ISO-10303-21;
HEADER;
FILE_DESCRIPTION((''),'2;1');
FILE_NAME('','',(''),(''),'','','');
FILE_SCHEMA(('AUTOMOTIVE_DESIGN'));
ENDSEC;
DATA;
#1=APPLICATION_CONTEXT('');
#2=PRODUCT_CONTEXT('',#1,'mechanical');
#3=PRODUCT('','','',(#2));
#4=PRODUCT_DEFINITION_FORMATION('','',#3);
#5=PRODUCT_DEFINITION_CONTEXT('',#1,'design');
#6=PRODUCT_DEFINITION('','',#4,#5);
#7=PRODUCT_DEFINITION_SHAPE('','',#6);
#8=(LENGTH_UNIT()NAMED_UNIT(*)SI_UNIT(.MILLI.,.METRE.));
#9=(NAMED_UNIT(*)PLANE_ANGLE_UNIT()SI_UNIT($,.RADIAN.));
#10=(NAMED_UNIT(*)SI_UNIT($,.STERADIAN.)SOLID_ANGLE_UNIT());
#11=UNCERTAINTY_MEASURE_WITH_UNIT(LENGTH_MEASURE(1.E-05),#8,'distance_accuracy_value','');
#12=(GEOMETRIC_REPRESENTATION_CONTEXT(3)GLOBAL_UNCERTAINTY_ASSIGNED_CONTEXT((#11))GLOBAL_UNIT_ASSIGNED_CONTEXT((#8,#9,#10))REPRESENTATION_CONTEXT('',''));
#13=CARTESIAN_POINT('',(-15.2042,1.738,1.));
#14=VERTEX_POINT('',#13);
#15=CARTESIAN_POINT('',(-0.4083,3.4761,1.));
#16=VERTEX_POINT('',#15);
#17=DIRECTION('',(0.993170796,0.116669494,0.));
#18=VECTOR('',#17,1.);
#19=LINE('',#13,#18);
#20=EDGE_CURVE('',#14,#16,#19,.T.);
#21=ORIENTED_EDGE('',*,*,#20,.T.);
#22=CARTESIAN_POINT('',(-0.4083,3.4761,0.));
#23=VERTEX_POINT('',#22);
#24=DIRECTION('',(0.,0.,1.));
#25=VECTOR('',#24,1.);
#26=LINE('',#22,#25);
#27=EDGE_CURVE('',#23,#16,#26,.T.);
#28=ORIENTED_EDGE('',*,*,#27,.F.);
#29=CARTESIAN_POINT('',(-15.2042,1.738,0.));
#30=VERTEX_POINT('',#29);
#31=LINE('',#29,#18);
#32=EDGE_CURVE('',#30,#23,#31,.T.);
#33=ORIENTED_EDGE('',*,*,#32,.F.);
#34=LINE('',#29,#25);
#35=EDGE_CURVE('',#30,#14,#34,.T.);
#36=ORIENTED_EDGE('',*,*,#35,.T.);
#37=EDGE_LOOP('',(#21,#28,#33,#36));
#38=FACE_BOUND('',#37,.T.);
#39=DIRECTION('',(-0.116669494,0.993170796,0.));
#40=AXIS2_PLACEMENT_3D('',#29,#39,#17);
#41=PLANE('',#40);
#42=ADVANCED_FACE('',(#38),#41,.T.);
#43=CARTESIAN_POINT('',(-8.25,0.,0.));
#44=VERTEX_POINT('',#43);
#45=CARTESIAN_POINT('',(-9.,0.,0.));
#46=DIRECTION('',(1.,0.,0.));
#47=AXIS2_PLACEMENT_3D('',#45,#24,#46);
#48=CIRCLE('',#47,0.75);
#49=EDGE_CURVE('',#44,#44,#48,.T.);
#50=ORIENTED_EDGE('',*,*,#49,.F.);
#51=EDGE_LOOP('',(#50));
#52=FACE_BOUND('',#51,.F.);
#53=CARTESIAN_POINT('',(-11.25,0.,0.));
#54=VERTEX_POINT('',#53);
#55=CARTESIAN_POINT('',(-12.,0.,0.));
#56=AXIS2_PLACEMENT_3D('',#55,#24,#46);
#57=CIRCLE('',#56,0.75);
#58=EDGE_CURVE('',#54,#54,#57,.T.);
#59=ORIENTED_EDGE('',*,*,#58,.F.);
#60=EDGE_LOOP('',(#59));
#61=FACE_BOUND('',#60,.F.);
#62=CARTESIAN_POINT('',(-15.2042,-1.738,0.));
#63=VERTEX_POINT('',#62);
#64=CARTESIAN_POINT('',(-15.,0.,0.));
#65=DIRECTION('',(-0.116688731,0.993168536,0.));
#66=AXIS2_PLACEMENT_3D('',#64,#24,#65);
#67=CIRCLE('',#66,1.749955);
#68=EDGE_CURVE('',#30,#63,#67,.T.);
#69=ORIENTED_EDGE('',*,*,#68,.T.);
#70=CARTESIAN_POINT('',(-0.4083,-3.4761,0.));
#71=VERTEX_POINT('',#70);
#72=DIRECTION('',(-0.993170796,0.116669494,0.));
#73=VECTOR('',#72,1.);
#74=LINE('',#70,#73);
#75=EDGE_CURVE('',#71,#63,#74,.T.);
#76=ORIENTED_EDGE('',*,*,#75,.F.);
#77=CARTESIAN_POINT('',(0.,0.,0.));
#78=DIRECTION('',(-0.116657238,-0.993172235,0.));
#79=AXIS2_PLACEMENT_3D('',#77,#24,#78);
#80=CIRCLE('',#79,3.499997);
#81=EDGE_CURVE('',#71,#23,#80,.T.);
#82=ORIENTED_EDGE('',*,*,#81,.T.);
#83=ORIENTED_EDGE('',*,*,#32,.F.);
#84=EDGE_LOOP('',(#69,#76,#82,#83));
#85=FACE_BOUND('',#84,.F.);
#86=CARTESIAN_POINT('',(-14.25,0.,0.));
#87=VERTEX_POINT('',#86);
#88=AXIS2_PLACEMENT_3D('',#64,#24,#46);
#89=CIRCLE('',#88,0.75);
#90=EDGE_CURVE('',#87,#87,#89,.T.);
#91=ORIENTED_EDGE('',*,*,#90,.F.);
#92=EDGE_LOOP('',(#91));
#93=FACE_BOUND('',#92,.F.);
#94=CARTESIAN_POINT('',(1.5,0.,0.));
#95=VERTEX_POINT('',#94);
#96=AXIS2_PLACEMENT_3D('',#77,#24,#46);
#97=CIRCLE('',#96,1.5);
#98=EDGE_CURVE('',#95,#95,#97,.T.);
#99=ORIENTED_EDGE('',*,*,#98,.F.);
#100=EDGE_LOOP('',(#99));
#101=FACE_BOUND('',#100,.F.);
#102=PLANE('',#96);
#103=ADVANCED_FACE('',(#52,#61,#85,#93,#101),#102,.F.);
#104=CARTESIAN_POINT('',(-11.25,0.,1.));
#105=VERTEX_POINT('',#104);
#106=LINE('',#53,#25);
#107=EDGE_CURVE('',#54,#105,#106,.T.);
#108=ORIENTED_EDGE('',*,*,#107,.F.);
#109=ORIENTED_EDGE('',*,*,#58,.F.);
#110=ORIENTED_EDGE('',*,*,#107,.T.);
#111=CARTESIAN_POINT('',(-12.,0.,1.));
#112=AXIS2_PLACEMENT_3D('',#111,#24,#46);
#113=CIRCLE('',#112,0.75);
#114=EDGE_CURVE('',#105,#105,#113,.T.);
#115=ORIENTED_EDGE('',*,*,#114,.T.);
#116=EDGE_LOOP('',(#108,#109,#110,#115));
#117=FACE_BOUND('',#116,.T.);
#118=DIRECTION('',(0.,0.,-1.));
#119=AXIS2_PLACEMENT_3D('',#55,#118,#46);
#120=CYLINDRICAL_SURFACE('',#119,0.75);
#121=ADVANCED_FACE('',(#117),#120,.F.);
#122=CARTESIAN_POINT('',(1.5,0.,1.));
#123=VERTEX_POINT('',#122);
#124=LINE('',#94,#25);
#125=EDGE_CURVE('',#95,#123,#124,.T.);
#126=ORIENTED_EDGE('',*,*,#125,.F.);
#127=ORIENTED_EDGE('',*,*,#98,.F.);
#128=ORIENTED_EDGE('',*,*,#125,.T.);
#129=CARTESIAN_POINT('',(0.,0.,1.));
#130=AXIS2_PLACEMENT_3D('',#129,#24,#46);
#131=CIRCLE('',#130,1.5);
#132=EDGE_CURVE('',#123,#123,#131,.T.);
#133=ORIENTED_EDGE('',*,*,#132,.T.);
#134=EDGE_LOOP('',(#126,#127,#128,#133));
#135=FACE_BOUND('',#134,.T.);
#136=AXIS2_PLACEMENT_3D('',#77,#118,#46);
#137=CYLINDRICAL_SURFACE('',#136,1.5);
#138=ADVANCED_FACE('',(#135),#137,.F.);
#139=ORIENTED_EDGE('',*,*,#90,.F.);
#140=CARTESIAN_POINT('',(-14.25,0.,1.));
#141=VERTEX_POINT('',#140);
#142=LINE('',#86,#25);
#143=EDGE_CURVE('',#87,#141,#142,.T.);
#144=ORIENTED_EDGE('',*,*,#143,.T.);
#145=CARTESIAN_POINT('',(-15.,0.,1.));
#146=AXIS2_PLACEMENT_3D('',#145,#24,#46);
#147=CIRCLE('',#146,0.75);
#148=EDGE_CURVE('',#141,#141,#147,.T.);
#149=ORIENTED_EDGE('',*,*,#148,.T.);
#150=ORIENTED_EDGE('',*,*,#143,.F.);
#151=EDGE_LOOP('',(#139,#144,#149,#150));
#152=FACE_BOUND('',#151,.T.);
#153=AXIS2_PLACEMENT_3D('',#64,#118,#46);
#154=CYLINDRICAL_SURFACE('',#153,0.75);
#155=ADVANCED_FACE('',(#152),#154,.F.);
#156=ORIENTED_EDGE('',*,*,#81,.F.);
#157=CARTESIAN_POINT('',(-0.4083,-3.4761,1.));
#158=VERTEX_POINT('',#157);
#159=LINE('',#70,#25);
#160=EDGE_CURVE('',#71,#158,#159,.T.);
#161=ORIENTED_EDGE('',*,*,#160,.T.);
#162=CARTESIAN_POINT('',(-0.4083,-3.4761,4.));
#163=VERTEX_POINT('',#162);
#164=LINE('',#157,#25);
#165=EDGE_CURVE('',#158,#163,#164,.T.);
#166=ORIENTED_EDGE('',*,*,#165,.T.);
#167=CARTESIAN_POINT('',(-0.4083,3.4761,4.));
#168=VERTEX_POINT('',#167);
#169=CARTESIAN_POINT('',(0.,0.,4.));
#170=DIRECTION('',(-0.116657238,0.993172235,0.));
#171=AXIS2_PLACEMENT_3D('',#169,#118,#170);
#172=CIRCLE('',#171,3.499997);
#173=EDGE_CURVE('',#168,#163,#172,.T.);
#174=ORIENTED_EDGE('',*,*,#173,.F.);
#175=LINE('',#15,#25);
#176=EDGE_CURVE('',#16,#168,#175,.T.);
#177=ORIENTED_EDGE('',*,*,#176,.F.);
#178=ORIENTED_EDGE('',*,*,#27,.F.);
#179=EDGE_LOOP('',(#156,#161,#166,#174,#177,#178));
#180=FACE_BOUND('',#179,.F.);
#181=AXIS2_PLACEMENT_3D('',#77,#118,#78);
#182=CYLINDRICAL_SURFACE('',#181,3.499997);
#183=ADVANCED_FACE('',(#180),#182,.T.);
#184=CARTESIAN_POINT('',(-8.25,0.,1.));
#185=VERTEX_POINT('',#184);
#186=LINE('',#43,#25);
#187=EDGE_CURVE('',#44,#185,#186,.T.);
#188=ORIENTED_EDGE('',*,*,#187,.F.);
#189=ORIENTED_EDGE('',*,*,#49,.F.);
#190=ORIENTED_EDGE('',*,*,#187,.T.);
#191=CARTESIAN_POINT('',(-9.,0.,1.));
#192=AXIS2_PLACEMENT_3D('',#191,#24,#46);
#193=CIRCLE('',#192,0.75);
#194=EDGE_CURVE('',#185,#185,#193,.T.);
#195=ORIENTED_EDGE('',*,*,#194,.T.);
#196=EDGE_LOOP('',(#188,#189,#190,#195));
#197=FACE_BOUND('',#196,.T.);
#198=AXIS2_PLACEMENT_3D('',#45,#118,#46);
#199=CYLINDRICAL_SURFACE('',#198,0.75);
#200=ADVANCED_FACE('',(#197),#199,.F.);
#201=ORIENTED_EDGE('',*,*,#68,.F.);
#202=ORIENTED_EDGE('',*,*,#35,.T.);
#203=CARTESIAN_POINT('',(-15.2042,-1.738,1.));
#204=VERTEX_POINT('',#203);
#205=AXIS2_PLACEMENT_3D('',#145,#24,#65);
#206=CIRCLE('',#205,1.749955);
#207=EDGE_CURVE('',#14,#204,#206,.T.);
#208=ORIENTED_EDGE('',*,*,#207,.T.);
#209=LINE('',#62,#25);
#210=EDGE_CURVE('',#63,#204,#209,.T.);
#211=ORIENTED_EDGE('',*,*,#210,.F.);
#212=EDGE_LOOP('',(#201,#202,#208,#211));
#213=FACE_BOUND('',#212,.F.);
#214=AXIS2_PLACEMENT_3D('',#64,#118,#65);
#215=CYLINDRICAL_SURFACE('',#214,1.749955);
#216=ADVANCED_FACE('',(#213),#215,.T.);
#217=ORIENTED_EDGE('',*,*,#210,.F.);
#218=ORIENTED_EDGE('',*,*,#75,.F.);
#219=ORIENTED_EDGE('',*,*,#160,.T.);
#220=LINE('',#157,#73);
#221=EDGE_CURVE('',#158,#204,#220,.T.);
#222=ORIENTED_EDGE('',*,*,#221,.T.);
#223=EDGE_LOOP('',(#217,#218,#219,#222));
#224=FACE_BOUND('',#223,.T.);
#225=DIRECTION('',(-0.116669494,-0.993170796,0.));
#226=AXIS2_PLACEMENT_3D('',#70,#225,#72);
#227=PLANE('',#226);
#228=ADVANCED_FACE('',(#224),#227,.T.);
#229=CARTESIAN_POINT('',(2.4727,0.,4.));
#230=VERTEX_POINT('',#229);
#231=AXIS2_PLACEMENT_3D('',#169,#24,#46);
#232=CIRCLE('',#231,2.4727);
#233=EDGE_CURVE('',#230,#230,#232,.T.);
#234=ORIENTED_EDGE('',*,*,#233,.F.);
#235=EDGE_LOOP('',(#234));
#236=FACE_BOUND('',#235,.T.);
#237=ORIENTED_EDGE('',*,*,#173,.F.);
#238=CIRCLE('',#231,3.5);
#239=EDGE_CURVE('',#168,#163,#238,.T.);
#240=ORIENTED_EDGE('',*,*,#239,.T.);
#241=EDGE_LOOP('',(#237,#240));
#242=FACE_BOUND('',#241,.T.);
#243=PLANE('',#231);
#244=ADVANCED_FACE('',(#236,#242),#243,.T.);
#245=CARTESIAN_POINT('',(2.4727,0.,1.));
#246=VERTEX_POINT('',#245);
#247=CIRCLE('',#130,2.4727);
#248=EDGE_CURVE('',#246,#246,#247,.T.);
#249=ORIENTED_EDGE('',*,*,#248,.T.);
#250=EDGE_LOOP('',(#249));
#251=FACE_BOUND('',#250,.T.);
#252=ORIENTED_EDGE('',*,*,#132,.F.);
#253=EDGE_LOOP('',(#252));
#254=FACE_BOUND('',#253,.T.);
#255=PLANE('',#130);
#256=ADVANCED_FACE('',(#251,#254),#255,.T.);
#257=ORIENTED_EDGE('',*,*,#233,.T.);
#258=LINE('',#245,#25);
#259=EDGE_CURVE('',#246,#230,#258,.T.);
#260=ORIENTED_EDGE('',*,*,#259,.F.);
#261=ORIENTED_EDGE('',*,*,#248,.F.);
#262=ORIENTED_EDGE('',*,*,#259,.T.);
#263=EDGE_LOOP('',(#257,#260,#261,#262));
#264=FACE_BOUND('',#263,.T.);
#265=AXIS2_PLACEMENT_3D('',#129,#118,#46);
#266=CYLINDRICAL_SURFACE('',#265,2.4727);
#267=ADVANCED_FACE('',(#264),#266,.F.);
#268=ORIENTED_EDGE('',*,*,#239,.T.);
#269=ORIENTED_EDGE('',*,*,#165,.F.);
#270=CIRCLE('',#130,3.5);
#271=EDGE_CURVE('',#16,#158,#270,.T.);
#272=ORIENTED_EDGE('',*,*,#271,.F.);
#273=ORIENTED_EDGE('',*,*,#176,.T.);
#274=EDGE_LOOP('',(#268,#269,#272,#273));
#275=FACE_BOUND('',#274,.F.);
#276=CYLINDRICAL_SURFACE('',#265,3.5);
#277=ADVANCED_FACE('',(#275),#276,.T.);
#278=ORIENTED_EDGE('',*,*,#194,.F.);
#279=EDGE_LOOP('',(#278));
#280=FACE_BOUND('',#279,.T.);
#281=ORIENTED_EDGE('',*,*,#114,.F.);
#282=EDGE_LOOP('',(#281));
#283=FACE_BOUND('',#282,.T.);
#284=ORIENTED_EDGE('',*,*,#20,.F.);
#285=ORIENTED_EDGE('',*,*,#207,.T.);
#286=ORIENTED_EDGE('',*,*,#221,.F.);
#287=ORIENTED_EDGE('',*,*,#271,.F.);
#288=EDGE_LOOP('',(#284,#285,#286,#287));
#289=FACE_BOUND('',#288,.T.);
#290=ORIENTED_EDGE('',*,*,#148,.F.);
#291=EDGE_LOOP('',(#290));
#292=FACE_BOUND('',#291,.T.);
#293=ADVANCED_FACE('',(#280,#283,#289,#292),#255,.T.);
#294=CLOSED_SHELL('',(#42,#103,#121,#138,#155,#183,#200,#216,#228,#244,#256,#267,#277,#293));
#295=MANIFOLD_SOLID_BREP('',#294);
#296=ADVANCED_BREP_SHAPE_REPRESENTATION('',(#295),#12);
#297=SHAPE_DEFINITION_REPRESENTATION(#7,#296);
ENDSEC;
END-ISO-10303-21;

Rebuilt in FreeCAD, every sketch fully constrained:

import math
import FreeCAD as App
import Part
import Sketcher
from FreeCAD import Vector
Q = App.Units.Quantity

doc = App.newDocument("Part")
body = doc.addObject("PartDesign::Body", "Body")

# Sketch on XY plane
sketch1 = body.newObject("Sketcher::SketchObject", "Sketch")
sketch1.AttachmentSupport = (doc.getObject("XY_Plane"), [""])
sketch1.MapMode = "FlatFace"
sketch1.addGeometry([
    Part.LineSegment(Vector(-15.2, -1.7, 0), Vector(-0.4, -3.5, 0)),  # 0
    Part.ArcOfCircle(Part.Circle(Vector(0, 0, 0), Vector(0, 0, 1), 3.5), math.radians(-97), math.radians(97)),  # 1
    Part.LineSegment(Vector(-0.4, 3.5, 0), Vector(-15.2, 1.7, 0)),  # 2
    Part.ArcOfCircle(Part.Circle(Vector(-15, 0, 0), Vector(0, 0, 1), 1.7), math.radians(97), math.radians(263)),  # 3
    Part.Circle(Vector(-15, 0, 0), Vector(0, 0, 1), 0.8),  # 4
    Part.Circle(Vector(-12, 0, 0), Vector(0, 0, 1), 0.8),  # 5
    Part.Circle(Vector(-9, 0, 0), Vector(0, 0, 1), 0.8),  # 6
    Part.Circle(Vector(0, 0, 0), Vector(0, 0, 1), 1.5),  # 7
], False)
sketch1.addConstraint([
    Sketcher.Constraint("Tangent", 0, 2, 1, 1),
    Sketcher.Constraint("Tangent", 1, 2, 2, 1),
    Sketcher.Constraint("Tangent", 2, 2, 3, 1),
    Sketcher.Constraint("Tangent", 3, 2, 0, 1),
    Sketcher.Constraint("Coincident", 1, 3, -1, 1),
    Sketcher.Constraint("Coincident", 7, 3, -1, 1),
    Sketcher.Constraint("Coincident", 4, 3, 3, 3),
    Sketcher.Constraint("Equal", 4, 5),
    Sketcher.Constraint("Equal", 5, 6),
    Sketcher.Constraint("PointOnObject", 3, 3, -1),
    Sketcher.Constraint("PointOnObject", 5, 3, -1),
    Sketcher.Constraint("PointOnObject", 6, 3, -1),
    Sketcher.Constraint("Diameter", 7, Q("3 mm")),
    Sketcher.Constraint("Diameter", 4, Q("1.5 mm")),
    Sketcher.Constraint("DistanceX", 3, 3, -1, 1, Q("15 mm")),
    Sketcher.Constraint("DistanceX", 3, 3, 5, 3, Q("3 mm")),
    Sketcher.Constraint("DistanceX", 5, 3, 6, 3, Q("3 mm")),
    Sketcher.Constraint("Radius", 1, Q("3.5 mm")),
    Sketcher.Constraint("Radius", 3, Q("1.75 mm")),
])
pad1 = body.newObject("PartDesign::Pad", "Pad")
pad1.Profile = sketch1
pad1.Length = 1

# Sketch on XY plane
sketch2 = body.newObject("Sketcher::SketchObject", "Sketch001")
sketch2.AttachmentSupport = (doc.getObject("XY_Plane"), [""])
sketch2.MapMode = "FlatFace"
sketch2.AttachmentOffset = App.Placement(Vector(0, 0, 1), App.Rotation())
sketch2.addGeometry([
    Part.Circle(Vector(0, 0, 0), Vector(0, 0, 1), 3.5),
    Part.Circle(Vector(0, 0, 0), Vector(0, 0, 1), 2.5),
], False)
sketch2.addConstraint([
    Sketcher.Constraint("Coincident", 0, 3, -1, 1),
    Sketcher.Constraint("Coincident", 1, 3, -1, 1),
    Sketcher.Constraint("Diameter", 0, Q("7 mm")),
    Sketcher.Constraint("Diameter", 1, Q("4.9454 mm")),
])
pad2 = body.newObject("PartDesign::Pad", "Pad001")
pad2.Profile = sketch2
pad2.Length = 3

doc.recompute()
